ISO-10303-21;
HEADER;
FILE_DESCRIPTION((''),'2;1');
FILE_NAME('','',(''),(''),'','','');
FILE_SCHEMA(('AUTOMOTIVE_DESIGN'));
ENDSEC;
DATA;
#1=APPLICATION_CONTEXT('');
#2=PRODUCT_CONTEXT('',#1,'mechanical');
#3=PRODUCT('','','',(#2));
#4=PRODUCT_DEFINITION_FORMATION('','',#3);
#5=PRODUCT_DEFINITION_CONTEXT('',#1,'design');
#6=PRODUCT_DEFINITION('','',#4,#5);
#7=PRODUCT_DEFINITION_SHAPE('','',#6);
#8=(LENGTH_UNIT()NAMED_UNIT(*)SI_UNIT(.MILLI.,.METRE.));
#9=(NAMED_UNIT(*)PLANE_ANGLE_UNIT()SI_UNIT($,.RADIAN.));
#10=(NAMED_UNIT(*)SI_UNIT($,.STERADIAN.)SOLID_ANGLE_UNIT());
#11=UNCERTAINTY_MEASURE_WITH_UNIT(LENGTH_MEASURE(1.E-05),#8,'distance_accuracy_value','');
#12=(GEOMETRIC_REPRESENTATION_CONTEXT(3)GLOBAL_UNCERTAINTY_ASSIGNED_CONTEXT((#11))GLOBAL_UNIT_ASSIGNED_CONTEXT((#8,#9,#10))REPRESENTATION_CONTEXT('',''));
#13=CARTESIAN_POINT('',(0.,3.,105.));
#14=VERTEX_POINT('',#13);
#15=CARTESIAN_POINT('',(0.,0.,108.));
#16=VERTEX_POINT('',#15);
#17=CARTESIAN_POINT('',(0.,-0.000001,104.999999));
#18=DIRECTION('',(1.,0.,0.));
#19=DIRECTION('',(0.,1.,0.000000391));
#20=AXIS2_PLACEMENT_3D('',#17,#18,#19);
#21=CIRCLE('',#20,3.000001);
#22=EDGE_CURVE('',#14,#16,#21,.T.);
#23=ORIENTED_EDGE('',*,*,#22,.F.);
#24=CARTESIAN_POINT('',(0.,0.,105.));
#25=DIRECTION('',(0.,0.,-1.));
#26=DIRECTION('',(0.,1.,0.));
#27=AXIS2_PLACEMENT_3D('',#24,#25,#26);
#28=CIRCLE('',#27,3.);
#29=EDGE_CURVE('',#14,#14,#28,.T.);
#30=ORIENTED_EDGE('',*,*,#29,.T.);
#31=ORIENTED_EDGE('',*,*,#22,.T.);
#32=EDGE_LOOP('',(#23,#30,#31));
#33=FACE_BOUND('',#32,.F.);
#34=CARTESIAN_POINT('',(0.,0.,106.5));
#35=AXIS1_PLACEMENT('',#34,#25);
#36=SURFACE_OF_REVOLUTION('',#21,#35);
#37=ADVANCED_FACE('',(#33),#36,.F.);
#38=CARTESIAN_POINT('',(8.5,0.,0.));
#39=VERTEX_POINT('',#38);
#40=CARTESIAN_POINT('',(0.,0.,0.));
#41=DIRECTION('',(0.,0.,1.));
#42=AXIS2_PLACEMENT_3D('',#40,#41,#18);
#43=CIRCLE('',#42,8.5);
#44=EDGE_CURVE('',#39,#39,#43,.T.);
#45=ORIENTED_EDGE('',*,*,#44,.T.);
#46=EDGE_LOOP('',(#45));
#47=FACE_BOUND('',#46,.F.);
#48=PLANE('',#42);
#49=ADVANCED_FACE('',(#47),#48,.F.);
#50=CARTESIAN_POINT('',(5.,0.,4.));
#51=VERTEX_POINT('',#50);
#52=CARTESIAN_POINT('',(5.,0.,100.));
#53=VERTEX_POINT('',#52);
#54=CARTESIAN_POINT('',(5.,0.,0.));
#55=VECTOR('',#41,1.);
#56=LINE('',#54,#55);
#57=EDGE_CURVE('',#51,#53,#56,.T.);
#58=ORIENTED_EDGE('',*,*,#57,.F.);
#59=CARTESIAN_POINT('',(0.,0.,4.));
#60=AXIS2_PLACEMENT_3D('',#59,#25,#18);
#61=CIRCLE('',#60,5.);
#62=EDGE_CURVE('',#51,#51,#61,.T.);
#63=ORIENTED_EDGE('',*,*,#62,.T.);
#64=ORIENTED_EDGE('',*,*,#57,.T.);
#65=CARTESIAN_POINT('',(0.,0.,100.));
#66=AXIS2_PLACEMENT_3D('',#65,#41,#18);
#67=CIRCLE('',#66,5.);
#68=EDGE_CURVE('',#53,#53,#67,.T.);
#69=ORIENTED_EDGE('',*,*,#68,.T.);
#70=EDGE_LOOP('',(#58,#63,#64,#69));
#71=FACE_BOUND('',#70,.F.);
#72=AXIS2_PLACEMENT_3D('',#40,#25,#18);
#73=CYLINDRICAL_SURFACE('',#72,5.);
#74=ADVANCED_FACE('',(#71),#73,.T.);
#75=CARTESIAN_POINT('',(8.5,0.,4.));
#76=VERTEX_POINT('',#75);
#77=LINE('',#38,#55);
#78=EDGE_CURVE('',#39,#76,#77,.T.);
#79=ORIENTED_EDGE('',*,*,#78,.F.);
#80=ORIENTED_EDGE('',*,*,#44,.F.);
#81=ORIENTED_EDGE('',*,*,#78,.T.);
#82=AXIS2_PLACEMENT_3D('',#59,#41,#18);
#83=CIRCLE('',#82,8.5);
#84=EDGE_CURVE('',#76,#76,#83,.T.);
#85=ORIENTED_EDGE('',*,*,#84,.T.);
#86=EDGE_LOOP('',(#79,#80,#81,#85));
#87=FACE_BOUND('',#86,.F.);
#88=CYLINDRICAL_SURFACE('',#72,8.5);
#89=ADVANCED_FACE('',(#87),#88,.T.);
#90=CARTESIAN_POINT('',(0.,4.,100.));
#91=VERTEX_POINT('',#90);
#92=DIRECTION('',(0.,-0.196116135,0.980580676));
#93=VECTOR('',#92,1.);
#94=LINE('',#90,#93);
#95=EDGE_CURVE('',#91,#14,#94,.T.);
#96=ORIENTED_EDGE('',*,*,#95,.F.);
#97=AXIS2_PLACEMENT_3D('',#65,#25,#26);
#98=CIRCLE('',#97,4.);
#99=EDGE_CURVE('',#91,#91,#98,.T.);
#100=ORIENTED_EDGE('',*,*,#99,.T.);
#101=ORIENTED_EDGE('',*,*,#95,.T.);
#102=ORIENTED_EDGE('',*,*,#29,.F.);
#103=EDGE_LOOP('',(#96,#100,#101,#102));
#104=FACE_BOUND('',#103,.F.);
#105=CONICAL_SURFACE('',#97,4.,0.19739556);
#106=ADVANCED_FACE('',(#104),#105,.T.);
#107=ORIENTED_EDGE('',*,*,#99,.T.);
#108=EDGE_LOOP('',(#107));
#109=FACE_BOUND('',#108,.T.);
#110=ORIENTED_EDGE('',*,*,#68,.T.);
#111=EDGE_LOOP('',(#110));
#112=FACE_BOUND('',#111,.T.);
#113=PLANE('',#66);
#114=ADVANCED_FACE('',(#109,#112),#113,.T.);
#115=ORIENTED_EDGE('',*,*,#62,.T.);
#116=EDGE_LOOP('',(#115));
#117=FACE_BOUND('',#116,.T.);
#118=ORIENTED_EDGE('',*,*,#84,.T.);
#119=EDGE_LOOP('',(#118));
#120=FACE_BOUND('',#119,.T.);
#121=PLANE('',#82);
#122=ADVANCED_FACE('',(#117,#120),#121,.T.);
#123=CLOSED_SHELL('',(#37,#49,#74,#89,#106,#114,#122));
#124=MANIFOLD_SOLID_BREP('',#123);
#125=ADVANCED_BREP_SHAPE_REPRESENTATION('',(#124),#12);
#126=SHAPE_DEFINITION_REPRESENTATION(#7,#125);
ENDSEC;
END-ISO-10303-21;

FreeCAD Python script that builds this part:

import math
import FreeCAD as App
import Part
import Sketcher


def add_polygon(sketch, points):
    """Adds a closed chain of lines whose ends are joined by coincident constraints."""
    first, n = sketch.GeometryCount, len(points)
    for a, b in zip(points, points[1:] + points[:1]):
        sketch.addGeometry(Part.LineSegment(App.Vector(*a, 0), App.Vector(*b, 0)), False)
    for i in range(n):
        sketch.addConstraint(Sketcher.Constraint("Coincident", first + i, 2, first + (i + 1) % n, 1))

doc = App.newDocument("Part")
body = doc.addObject("PartDesign::Body", "Body")

sketch1 = body.newObject("Sketcher::SketchObject", "Sketch")
sketch1.AttachmentSupport = (doc.getObject("XY_Plane"), [""])
sketch1.MapMode = "FlatFace"
sketch1.addGeometry(Part.Circle(App.Vector(0, 0, 0), App.Vector(0, 0, 1), 8), False)
sketch1.addConstraint([
    Sketcher.Constraint("Coincident", 0, 3, -1, 1),
    Sketcher.Constraint("Diameter", 0, 17.0),
])
pad1 = body.newObject("PartDesign::Pad", "Pad")
pad1.Profile = sketch1
pad1.Length = 4

sketch2 = body.newObject("Sketcher::SketchObject", "Sketch001")
sketch2.AttachmentSupport = (doc.getObject("XY_Plane"), [""])
sketch2.MapMode = "FlatFace"
sketch2.addGeometry(Part.Circle(App.Vector(0, 0, 0), App.Vector(0, 0, 1), 5), False)
sketch2.addConstraint([
    Sketcher.Constraint("Coincident", 0, 3, -1, 1),
    Sketcher.Constraint("Diameter", 0, 10.0),
])
pad2 = body.newObject("PartDesign::Pad", "Pad001")
pad2.Profile = sketch2
pad2.Length = 100

sketch3 = body.newObject("Sketcher::SketchObject", "Sketch002")
sketch3.AttachmentSupport = (doc.getObject("YZ_Plane"), [""])
sketch3.MapMode = "FlatFace"
add_polygon(sketch3, [(3, 105), (0, 105), (0, 100), (4, 100)])
sketch3.addConstraint([
    Sketcher.Constraint("Horizontal", 0),
    Sketcher.Constraint("Vertical", 1),
    Sketcher.Constraint("Horizontal", 2),
    Sketcher.Constraint("PointOnObject", 0, 2, -2),
    Sketcher.Constraint("DistanceX", 0, 2, 0, 1, 3.0),
    Sketcher.Constraint("DistanceX", 2, 1, 2, 2, 4.0),
    Sketcher.Constraint("DistanceY", 1, 2, 1, 1, 5.0),
    Sketcher.Constraint("DistanceY", -1, 1, 0, 2, 105.0),
])
revolution = body.newObject("PartDesign::Revolution", "Revolution")
revolution.Profile = sketch3
revolution.ReferenceAxis = (sketch3, ["V_Axis"])
revolution.Angle = 360

sketch4 = body.newObject("Sketcher::SketchObject", "Sketch003")
sketch4.AttachmentSupport = (doc.getObject("YZ_Plane"), [""])
sketch4.MapMode = "FlatFace"
sketch4.addGeometry([
    Part.ArcOfCircle(Part.Circle(App.Vector(0, 105, 0), App.Vector(0, 0, 1), 3), math.radians(0), math.radians(90)),
    Part.LineSegment(App.Vector(0, 108, 0), App.Vector(0, 105, 0)),
    Part.LineSegment(App.Vector(0, 105, 0), App.Vector(3, 105, 0)),
], False)
sketch4.addConstraint([
    Sketcher.Constraint("Coincident", 0, 2, 1, 1),
    Sketcher.Constraint("Coincident", 1, 2, 2, 1),
    Sketcher.Constraint("Coincident", 2, 2, 0, 1),
    Sketcher.Constraint("Vertical", 1),
    Sketcher.Constraint("Horizontal", 2),
    Sketcher.Constraint("Coincident", 1, 2, 0, 3),
    Sketcher.Constraint("PointOnObject", 0, 3, -2),
    Sketcher.Constraint("Radius", 0, 3.000001),
    Sketcher.Constraint("DistanceY", -1, 1, 0, 3, 104.999999),
])
revolution2 = body.newObject("PartDesign::Revolution", "Revolution001")
revolution2.Profile = sketch4
revolution2.ReferenceAxis = (sketch4, ["V_Axis"])
revolution2.Angle = 360

doc.recompute()
